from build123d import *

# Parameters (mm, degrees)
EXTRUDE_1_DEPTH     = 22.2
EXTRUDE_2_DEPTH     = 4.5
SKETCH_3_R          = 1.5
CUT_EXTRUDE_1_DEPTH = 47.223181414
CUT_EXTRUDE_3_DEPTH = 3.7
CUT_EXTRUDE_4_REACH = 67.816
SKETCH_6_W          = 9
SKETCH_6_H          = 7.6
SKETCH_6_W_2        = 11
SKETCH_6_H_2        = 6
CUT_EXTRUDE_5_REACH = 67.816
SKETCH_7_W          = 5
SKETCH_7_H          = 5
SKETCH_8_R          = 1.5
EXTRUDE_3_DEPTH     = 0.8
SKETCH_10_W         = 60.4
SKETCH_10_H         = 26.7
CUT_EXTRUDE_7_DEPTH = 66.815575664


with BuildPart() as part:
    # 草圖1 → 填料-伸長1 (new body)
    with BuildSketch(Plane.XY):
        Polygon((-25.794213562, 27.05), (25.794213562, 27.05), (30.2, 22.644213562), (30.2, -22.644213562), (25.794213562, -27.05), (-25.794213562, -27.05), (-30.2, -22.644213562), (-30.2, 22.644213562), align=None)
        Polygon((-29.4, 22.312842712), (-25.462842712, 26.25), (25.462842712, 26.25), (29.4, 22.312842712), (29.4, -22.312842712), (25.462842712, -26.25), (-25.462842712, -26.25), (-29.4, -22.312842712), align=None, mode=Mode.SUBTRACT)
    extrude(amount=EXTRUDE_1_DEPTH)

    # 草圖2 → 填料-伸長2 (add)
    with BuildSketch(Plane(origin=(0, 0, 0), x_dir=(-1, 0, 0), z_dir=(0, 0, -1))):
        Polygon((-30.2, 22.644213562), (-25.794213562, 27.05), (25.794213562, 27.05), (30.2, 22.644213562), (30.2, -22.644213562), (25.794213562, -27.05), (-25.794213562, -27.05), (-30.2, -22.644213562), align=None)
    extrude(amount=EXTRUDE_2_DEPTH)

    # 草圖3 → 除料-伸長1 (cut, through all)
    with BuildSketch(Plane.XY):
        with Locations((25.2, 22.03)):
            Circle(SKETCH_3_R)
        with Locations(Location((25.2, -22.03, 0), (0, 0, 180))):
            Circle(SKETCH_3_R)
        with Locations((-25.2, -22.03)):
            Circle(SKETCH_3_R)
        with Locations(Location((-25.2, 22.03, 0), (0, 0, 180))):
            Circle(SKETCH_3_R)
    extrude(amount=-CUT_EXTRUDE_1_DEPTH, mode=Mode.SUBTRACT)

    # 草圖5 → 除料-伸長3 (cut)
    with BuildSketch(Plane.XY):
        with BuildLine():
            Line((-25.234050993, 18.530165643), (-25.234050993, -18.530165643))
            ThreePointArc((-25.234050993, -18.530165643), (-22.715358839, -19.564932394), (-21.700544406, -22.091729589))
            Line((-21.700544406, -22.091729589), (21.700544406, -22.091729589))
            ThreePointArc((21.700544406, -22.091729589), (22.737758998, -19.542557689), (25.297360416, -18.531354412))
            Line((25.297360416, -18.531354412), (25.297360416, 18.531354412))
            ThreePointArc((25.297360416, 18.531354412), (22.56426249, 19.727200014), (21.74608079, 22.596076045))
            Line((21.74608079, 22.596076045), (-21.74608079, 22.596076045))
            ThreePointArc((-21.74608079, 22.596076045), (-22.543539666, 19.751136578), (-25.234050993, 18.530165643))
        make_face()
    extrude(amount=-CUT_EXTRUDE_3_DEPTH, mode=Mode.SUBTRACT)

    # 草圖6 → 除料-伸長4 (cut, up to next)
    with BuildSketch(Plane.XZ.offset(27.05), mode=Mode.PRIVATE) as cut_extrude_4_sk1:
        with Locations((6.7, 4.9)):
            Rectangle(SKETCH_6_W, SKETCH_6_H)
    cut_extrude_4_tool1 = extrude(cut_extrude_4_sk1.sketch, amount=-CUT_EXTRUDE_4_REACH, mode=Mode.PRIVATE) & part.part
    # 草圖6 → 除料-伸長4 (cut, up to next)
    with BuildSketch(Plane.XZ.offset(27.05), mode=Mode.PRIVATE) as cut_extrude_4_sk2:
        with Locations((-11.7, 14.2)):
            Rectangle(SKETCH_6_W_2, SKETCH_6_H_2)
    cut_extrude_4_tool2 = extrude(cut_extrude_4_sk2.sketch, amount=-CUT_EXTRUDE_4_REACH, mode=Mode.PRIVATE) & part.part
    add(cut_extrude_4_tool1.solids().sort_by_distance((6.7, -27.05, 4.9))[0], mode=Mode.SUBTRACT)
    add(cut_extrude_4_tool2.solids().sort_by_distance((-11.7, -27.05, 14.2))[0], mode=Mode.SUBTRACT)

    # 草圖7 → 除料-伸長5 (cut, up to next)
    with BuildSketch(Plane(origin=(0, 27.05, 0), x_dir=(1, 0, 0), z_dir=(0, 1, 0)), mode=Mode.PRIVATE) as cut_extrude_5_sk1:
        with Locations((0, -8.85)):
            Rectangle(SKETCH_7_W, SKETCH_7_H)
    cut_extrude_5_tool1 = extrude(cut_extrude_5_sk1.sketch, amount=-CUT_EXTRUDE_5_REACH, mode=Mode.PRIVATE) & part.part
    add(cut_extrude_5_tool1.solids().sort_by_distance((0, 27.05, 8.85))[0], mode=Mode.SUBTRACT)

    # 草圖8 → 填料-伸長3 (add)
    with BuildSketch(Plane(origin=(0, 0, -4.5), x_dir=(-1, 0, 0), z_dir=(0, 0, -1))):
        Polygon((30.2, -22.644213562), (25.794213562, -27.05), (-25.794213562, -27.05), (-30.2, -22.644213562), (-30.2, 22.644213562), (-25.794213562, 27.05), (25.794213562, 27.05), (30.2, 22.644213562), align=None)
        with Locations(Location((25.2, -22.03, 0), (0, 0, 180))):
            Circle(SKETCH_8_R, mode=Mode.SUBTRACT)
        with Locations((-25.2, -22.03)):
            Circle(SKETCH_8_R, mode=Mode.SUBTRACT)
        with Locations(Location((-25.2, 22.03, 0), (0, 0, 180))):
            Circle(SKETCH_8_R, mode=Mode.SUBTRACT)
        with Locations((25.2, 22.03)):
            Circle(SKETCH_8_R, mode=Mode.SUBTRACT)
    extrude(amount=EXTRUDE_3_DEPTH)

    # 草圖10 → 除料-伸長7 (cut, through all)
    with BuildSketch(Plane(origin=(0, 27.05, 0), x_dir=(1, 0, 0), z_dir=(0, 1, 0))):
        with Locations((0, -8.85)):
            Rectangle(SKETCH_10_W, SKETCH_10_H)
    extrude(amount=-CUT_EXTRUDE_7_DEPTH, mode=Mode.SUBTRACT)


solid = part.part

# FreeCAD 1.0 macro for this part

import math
import FreeCAD as App
import Part
import Sketcher
Q = App.Units.Quantity


def add_polygon(sketch, points):
    """Adds a closed chain of lines whose ends are joined by coincident constraints."""
    first, n = sketch.GeometryCount, len(points)
    for a, b in zip(points, points[1:] + points[:1]):
        sketch.addGeometry(Part.LineSegment(App.Vector(*a, 0), App.Vector(*b, 0)), False)
    for i in range(n):
        sketch.addConstraint(Sketcher.Constraint("Coincident", first + i, 2, first + (i + 1) % n, 1))

doc = App.newDocument("Part")
body = doc.addObject("PartDesign::Body", "Body")

# Sketch on XY plane
sketch1 = doc.addObject("Sketcher::SketchObject", "Sketch")
body.addObject(sketch1)
sketch1.AttachmentSupport = (doc.XY_Plane, [""])
sketch1.MapMode = "FlatFace"
add_polygon(sketch1, [(26, 27), (-26, 27), (-30, 23), (-30, -23), (-26, -27), (26, -27), (30, -23), (30, 23)])  # lines 0-7
add_polygon(sketch1, [(-29, 22), (-25, 26), (25, 26), (29, 22), (29, -22), (25, -26), (-25, -26), (-29, -22)])  # lines 8-15
sketch1.addConstraint([
    Sketcher.Constraint("Horizontal", 0),
    Sketcher.Constraint("Vertical", 2),
    Sketcher.Constraint("Horizontal", 4),
    Sketcher.Constraint("Vertical", 6),
    Sketcher.Constraint("Horizontal", 9),
    Sketcher.Constraint("Vertical", 11),
    Sketcher.Constraint("Horizontal", 13),
    Sketcher.Constraint("Vertical", 15),
    Sketcher.Constraint("Symmetric", 0, 2, 4, 2, -1, 1),
    Sketcher.Constraint("Symmetric", 1, 2, 5, 2, -1, 1),
    Sketcher.Constraint("Symmetric", 8, 2, 12, 2, -1, 1),
    Sketcher.Constraint("Symmetric", 10, 2, 14, 2, -1, 1),
    Sketcher.Constraint("Perpendicular", 1, 3),
    Sketcher.Constraint("Perpendicular", 5, 7),
    Sketcher.Constraint("Perpendicular", 7, 8),
    Sketcher.Constraint("Perpendicular", 8, 10),
    Sketcher.Constraint("Perpendicular", 10, 12),
    Sketcher.Constraint("Perpendicular", 12, 14),
    Sketcher.Constraint("Horizontal", 2, 2, 5, 2),
    Sketcher.Constraint("Horizontal", 1, 2, 6, 2),
    Sketcher.Constraint("Horizontal", 11, 2, 14, 2),
    Sketcher.Constraint("Vertical", 0, 2, 3, 2),
    Sketcher.Constraint("DistanceX", 1, 2, -1, 1, Q("30.2 mm")),
    Sketcher.Constraint("DistanceX", -1, 1, 10, 2, Q("29.4 mm")),
    Sketcher.Constraint("DistanceY", 3, 2, 0, 2, Q("54.1 mm")),
    Sketcher.Constraint("DistanceY", 8, 2, 0, 2, Q("0.8 mm")),
    Sketcher.Constraint("Distance", 8, Q("5.567981 mm")),
    Sketcher.Constraint("DistanceX", 0, 2, 0, 1, Q("51.588427 mm")),
])
pad1 = doc.addObject("PartDesign::Pad", "Pad")
body.addObject(pad1)
pad1.Profile = sketch1
pad1.Length = 22.2

# Sketch on XY plane
sketch2 = doc.addObject("Sketcher::SketchObject", "Sketch001")
body.addObject(sketch2)
sketch2.AttachmentSupport = (doc.XY_Plane, [""])
sketch2.MapMode = "FlatFace"
add_polygon(sketch2, [(26, 27), (30, 23), (30, -23), (26, -27), (-26, -27), (-30, -23), (-30, 23), (-26, 27)])  # lines 0-7
sketch2.addConstraint([
    Sketcher.Constraint("Vertical", 1),
    Sketcher.Constraint("Horizontal", 3),
    Sketcher.Constraint("Vertical", 5),
    Sketcher.Constraint("Horizontal", 7),
    Sketcher.Constraint("Symmetric", 0, 2, 4, 2, -1, 1),
    Sketcher.Constraint("Symmetric", 2, 2, 6, 2, -1, 1),
    Sketcher.Constraint("Perpendicular", 0, 2),
    Sketcher.Constraint("Perpendicular", 2, 4),
    Sketcher.Constraint("Perpendicular", 4, 6),
    Sketcher.Constraint("Horizontal", 1, 2, 4, 2),
    Sketcher.Constraint("Vertical", 3, 2, 6, 2),
    Sketcher.Constraint("DistanceX", -1, 1, 0, 2, Q("30.2 mm")),
    Sketcher.Constraint("DistanceY", 3, 2, 6, 2, Q("54.1 mm")),
    Sketcher.Constraint("DistanceX", 3, 2, 3, 1, Q("51.588427 mm")),
])
pad2 = doc.addObject("PartDesign::Pad", "Pad001")
body.addObject(pad2)
pad2.Profile = sketch2
pad2.Length = 4.5
pad2.Reversed = True

# Sketch on XY plane
sketch3 = doc.addObject("Sketcher::SketchObject", "Sketch002")
body.addObject(sketch3)
sketch3.AttachmentSupport = (doc.XY_Plane, [""])
sketch3.MapMode = "FlatFace"
sketch3.addGeometry([
    Part.Circle(App.Vector(25.2, 22, 0), App.Vector(0, 0, 1), 1.5),
    Part.Circle(App.Vector(25.2, -22, 0), App.Vector(0, 0, 1), 1.5),
    Part.Circle(App.Vector(-25.2, -22, 0), App.Vector(0, 0, 1), 1.5),
    Part.Circle(App.Vector(-25.2, 22, 0), App.Vector(0, 0, 1), 1.5),
], False)
sketch3.addConstraint([
    Sketcher.Constraint("Equal", 0, 1),
    Sketcher.Constraint("Equal", 1, 2),
    Sketcher.Constraint("Equal", 2, 3),
    Sketcher.Constraint("Symmetric", 0, 3, 2, 3, -1, 1),
    Sketcher.Constraint("Symmetric", 1, 3, 3, 3, -1, 1),
    Sketcher.Constraint("Symmetric", 1, 3, 2, 3, -2),
    Sketcher.Constraint("Diameter", 0, Q("3 mm")),
    Sketcher.Constraint("DistanceX", -1, 1, 0, 3, Q("25.2 mm")),
    Sketcher.Constraint("DistanceY", -1, 1, 0, 3, Q("22.03 mm")),
])
pocket1 = doc.addObject("PartDesign::Pocket", "Pocket")
body.addObject(pocket1)
pocket1.Profile = sketch3
pocket1.Type = "ThroughAll"

# Sketch on XY plane
sketch4 = doc.addObject("Sketcher::SketchObject", "Sketch003")
body.addObject(sketch4)
sketch4.AttachmentSupport = (doc.XY_Plane, [""])
sketch4.MapMode = "FlatFace"
sketch4.addGeometry([
    Part.LineSegment(App.Vector(-25.2, 18.5, 0), App.Vector(-25.2, -18.5, 0)),  # 0
    Part.ArcOfCircle(Part.Circle(App.Vector(-25.2, -22, 0), App.Vector(0, 0, 1), 3.5), math.radians(-1), math.radians(91)),  # 1
    Part.LineSegment(App.Vector(-21.7, -22.1, 0), App.Vector(21.7, -22.1, 0)),  # 2
    Part.ArcOfCircle(Part.Circle(App.Vector(25.2, -22, 0), App.Vector(0, 0, 1), 3.5), math.radians(88), math.radians(181)),  # 3
    Part.LineSegment(App.Vector(25.3, -18.5, 0), App.Vector(25.3, 18.5, 0)),  # 4
    Part.ArcOfCircle(Part.Circle(App.Vector(25.2, 22, 0), App.Vector(0, 0, 1), 3.5), math.radians(171), math.radians(272)),  # 5
    Part.LineSegment(App.Vector(21.7, 22.6, 0), App.Vector(-21.7, 22.6, 0)),  # 6
    Part.ArcOfCircle(Part.Circle(App.Vector(-25.2, 22, 0), App.Vector(0, 0, 1), 3.5), math.radians(-91), math.radians(9)),  # 7
], False)
sketch4.addConstraint([
    Sketcher.Constraint("Coincident", 0, 2, 1, 2),
    Sketcher.Constraint("Coincident", 1, 1, 2, 1),
    Sketcher.Constraint("Coincident", 2, 2, 3, 2),
    Sketcher.Constraint("Coincident", 3, 1, 4, 1),
    Sketcher.Constraint("Coincident", 4, 2, 5, 2),
    Sketcher.Constraint("Coincident", 5, 1, 6, 1),
    Sketcher.Constraint("Coincident", 6, 2, 7, 2),
    Sketcher.Constraint("Coincident", 7, 1, 0, 1),
    Sketcher.Constraint("Vertical", 0),
    Sketcher.Constraint("Horizontal", 2),
    Sketcher.Constraint("Vertical", 4),
    Sketcher.Constraint("Horizontal", 6),
    Sketcher.Constraint("Equal", 1, 3),
    Sketcher.Constraint("Equal", 3, 5),
    Sketcher.Constraint("Equal", 5, 7),
    Sketcher.Constraint("Symmetric", 1, 3, 5, 3, -1, 1),
    Sketcher.Constraint("Symmetric", 3, 3, 7, 3, -1, 1),
    Sketcher.Constraint("Symmetric", 1, 3, 3, 3, -2),
    Sketcher.Constraint("Radius", 1, Q("3.5 mm")),
    Sketcher.Constraint("DistanceX", 1, 3, -1, 1, Q("25.2 mm")),
    Sketcher.Constraint("DistanceY", 1, 3, -1, 1, Q("22.03 mm")),
    Sketcher.Constraint("DistanceX", 2, 1, 2, 2, Q("43.401089 mm")),
    Sketcher.Constraint("DistanceX", 6, 2, 6, 1, Q("43.492162 mm")),
    Sketcher.Constraint("DistanceY", 0, 2, 0, 1, Q("37.060331 mm")),
    Sketcher.Constraint("DistanceY", 4, 1, 4, 2, Q("37.062709 mm")),
])
pocket2 = doc.addObject("PartDesign::Pocket", "Pocket001")
body.addObject(pocket2)
pocket2.Profile = sketch4
pocket2.Length = 3.7

# Sketch on XZ plane
sketch5 = doc.addObject("Sketcher::SketchObject", "Sketch004")
body.addObject(sketch5)
sketch5.AttachmentSupport = (doc.XZ_Plane, [""])
sketch5.MapMode = "FlatFace"
sketch5.AttachmentOffset = App.Placement(App.Vector(0, 0, 27.05), App.Rotation())
add_polygon(sketch5, [(2, 9), (2, 1), (11, 1), (11, 9)])  # lines 0-3
sketch5.addConstraint([
    Sketcher.Constraint("Vertical", 0),
    Sketcher.Constraint("Horizontal", 1),
    Sketcher.Constraint("Vertical", 2),
    Sketcher.Constraint("Horizontal", 3),
    Sketcher.Constraint("DistanceX", 1, 1, 1, 2, Q("9 mm")),
    Sketcher.Constraint("DistanceY", 0, 2, 0, 1, Q("7.6 mm")),
    Sketcher.Constraint("DistanceX", -1, 1, 0, 2, Q("2.2 mm")),
    Sketcher.Constraint("DistanceY", -1, 1, 0, 2, Q("1.1 mm")),
])
pocket3 = doc.addObject("PartDesign::Pocket", "Pocket002")
body.addObject(pocket3)
pocket3.Profile = sketch5
pocket3.Type = "UpToFirst"

# Sketch on XZ plane
sketch6 = doc.addObject("Sketcher::SketchObject", "Sketch005")
body.addObject(sketch6)
sketch6.AttachmentSupport = (doc.XZ_Plane, [""])
sketch6.MapMode = "FlatFace"
sketch6.AttachmentOffset = App.Placement(App.Vector(0, 0, 27.05), App.Rotation())
add_polygon(sketch6, [(-17, 17), (-17, 11), (-6, 11), (-6, 17)])  # lines 0-3
sketch6.addConstraint([
    Sketcher.Constraint("Vertical", 0),
    Sketcher.Constraint("Horizontal", 1),
    Sketcher.Constraint("Vertical", 2),
    Sketcher.Constraint("Horizontal", 3),
    Sketcher.Constraint("DistanceX", 1, 1, 1, 2, Q("11 mm")),
    Sketcher.Constraint("DistanceY", 0, 2, 0, 1, Q("6 mm")),
    Sketcher.Constraint("DistanceX", 0, 2, -1, 1, Q("17.2 mm")),
    Sketcher.Constraint("DistanceY", -1, 1, 0, 2, Q("11.2 mm")),
])
pocket4 = doc.addObject("PartDesign::Pocket", "Pocket003")
body.addObject(pocket4)
pocket4.Profile = sketch6
pocket4.Type = "UpToFirst"

# Sketch on XZ plane
sketch7 = doc.addObject("Sketcher::SketchObject", "Sketch006")
body.addObject(sketch7)
sketch7.AttachmentSupport = (doc.XZ_Plane, [""])
sketch7.MapMode = "FlatFace"
sketch7.AttachmentOffset = App.Placement(App.Vector(0, 0, -27.05), App.Rotation())
add_polygon(sketch7, [(-2, 6), (-2, 11), (2, 11), (2, 6)])  # lines 0-3
sketch7.addConstraint([
    Sketcher.Constraint("Vertical", 0),
    Sketcher.Constraint("Horizontal", 1),
    Sketcher.Constraint("Vertical", 2),
    Sketcher.Constraint("Horizontal", 3),
    Sketcher.Constraint("Equal", 3, 0),
    Sketcher.Constraint("DistanceX", 1, 1, 1, 2, Q("5 mm")),
    Sketcher.Constraint("DistanceX", 0, 2, -1, 1, Q("2.5 mm")),
    Sketcher.Constraint("DistanceY", -1, 1, 0, 2, Q("11.35 mm")),
])
pocket5 = doc.addObject("PartDesign::Pocket", "Pocket004")
body.addObject(pocket5)
pocket5.Profile = sketch7
pocket5.Type = "UpToFirst"
pocket5.Reversed = True

# Sketch on XY plane
sketch8 = doc.addObject("Sketcher::SketchObject", "Sketch007")
body.addObject(sketch8)
sketch8.AttachmentSupport = (doc.XY_Plane, [""])
sketch8.MapMode = "FlatFace"
sketch8.AttachmentOffset = App.Placement(App.Vector(0, 0, -4.5), App.Rotation())
add_polygon(sketch8, [(-25.8, -27.1), (-30.2, -22.6), (-30.2, 22.6), (-25.8, 27.1), (25.8, 27.1), (30.2, 22.6), (30.2, -22.6), (25.8, -27.1)])  # lines 0-7
sketch8.addGeometry(Part.Circle(App.Vector(-25.2, -22, 0), App.Vector(0, 0, 1), 1.5), False)  # 8
sketch8.addGeometry(Part.Circle(App.Vector(25.2, -22, 0), App.Vector(0, 0, 1), 1.5), False)  # 9
sketch8.addGeometry(Part.Circle(App.Vector(-25.2, 22, 0), App.Vector(0, 0, 1), 1.5), False)  # 10
sketch8.addGeometry(Part.Circle(App.Vector(25.2, 22, 0), App.Vector(0, 0, 1), 1.5), False)  # 11
sketch8.addConstraint([
    Sketcher.Constraint("Vertical", 1),
    Sketcher.Constraint("Horizontal", 3),
    Sketcher.Constraint("Vertical", 5),
    Sketcher.Constraint("Horizontal", 7),
    Sketcher.Constraint("Equal", 8, 9),
    Sketcher.Constraint("Equal", 9, 10),
    Sketcher.Constraint("Equal", 10, 11),
    Sketcher.Constraint("Symmetric", 9, 3, 10, 3, -1, 1),
    Sketcher.Constraint("Symmetric", 8, 3, 11, 3, -1, 1),
    Sketcher.Constraint("Symmetric", 0, 2, 4, 2, -1, 1),
    Sketcher.Constraint("Symmetric", 2, 2, 6, 2, -1, 1),
    Sketcher.Constraint("Symmetric", 8, 3, 9, 3, -2),
    Sketcher.Constraint("Perpendicular", 0, 2),
    Sketcher.Constraint("Perpendicular", 2, 4),
    Sketcher.Constraint("Perpendicular", 4, 6),
    Sketcher.Constraint("Horizontal", 1, 2, 4, 2),
    Sketcher.Constraint("Vertical", 3, 2, 6, 2),
    Sketcher.Constraint("Diameter", 8, Q("3 mm")),
    Sketcher.Constraint("DistanceX", 0, 2, 8, 3, Q("5 mm")),
    Sketcher.Constraint("DistanceX", 8, 3, -1, 1, Q("25.2 mm")),
    Sketcher.Constraint("DistanceY", 8, 3, -1, 1, Q("22.03 mm")),
    Sketcher.Constraint("DistanceY", -1, 1, 2, 2, Q("27.05 mm")),
    Sketcher.Constraint("DistanceX", 3, 1, 3, 2, Q("51.588427 mm")),
])
pad3 = doc.addObject("PartDesign::Pad", "Pad002")
body.addObject(pad3)
pad3.Profile = sketch8
pad3.Length = 0.8
pad3.Reversed = True

# Sketch on XZ plane
sketch9 = doc.addObject("Sketcher::SketchObject", "Sketch008")
body.addObject(sketch9)
sketch9.AttachmentSupport = (doc.XZ_Plane, [""])
sketch9.MapMode = "FlatFace"
sketch9.AttachmentOffset = App.Placement(App.Vector(0, 0, -27.05), App.Rotation())
add_polygon(sketch9, [(-30, -4), (-30, 22), (30, 22), (30, -4)])  # lines 0-3
sketch9.addConstraint([
    Sketcher.Constraint("Vertical", 0),
    Sketcher.Constraint("Horizontal", 1),
    Sketcher.Constraint("Vertical", 2),
    Sketcher.Constraint("Horizontal", 3),
    Sketcher.Constraint("DistanceX", 1, 1, 1, 2, Q("60.4 mm")),
    Sketcher.Constraint("DistanceY", 0, 1, 0, 2, Q("26.7 mm")),
    Sketcher.Constraint("DistanceX", 0, 2, -1, 1, Q("30.2 mm")),
    Sketcher.Constraint("DistanceY", -1, 1, 0, 2, Q("22.2 mm")),
])
pocket6 = doc.addObject("PartDesign::Pocket", "Pocket005")
body.addObject(pocket6)
pocket6.Profile = sketch9
pocket6.Type = "ThroughAll"
pocket6.Reversed = True

doc.recompute()
